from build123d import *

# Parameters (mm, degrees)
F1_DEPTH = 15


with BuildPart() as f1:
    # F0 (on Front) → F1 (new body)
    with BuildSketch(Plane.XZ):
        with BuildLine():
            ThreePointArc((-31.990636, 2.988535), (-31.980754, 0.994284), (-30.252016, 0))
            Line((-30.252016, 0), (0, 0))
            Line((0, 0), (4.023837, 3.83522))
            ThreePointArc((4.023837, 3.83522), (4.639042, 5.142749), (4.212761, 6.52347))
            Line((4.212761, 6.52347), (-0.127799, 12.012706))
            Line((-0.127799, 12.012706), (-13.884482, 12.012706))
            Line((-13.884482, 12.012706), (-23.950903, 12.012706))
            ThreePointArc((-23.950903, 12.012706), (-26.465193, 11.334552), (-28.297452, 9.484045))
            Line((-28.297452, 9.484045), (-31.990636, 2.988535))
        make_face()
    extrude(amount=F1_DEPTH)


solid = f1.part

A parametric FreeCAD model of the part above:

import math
import FreeCAD as App
import Part
import Sketcher
from FreeCAD import Vector
Q = App.Units.Quantity

doc = App.newDocument("Part")
body = doc.addObject("PartDesign::Body", "Body")

sketch1 = body.newObject("Sketcher::SketchObject", "Sketch")
sketch1.AttachmentSupport = (doc.getObject("XZ_Plane"), [""])
sketch1.MapMode = "FlatFace"
sketch1.addGeometry(Part.ArcOfCircle(Part.Circle(Vector(-30.3, 2, 0), Vector(0, 0, 1), 2), math.radians(150), math.radians(270)), False)
sketch1.addGeometry(Part.LineSegment(Vector(-30.3, 0, 0), Vector(0, 0, 0)), False)
sketch1.addGeometry(Part.LineSegment(Vector(0, 0, 0), Vector(4, 3.8, 0)), False)
sketch1.addGeometry(Part.ArcOfCircle(Part.Circle(Vector(2.6, 5.3, 0), Vector(0, 0, 1), 2), math.radians(-46), math.radians(38)), False)
sketch1.addGeometry(Part.LineSegment(Vector(4.2, 6.5, 0), Vector(-0.1, 12, 0)), False)
sketch1.addGeometry(Part.LineSegment(Vector(-0.1, 12, 0), Vector(-24, 12, 0)), False)
sketch1.addGeometry(Part.ArcOfCircle(Part.Circle(Vector(-24, 7, 0), Vector(0, 0, 1), 5), math.radians(90), math.radians(150)), False)
sketch1.addGeometry(Part.LineSegment(Vector(-28.3, 9.5, 0), Vector(-32, 3, 0)), False)
sketch1.addConstraint(Sketcher.Constraint("Tangent", 0, 2, 1, 1))
sketch1.addConstraint(Sketcher.Constraint("Coincident", 1, 2, 2, 1))
sketch1.addConstraint(Sketcher.Constraint("Tangent", 2, 2, 3, 1))
sketch1.addConstraint(Sketcher.Constraint("Tangent", 3, 2, 4, 1))
sketch1.addConstraint(Sketcher.Constraint("Coincident", 4, 2, 5, 1))
sketch1.addConstraint(Sketcher.Constraint("Tangent", 5, 2, 6, 1))
sketch1.addConstraint(Sketcher.Constraint("Tangent", 6, 2, 7, 1))
sketch1.addConstraint(Sketcher.Constraint("Tangent", 7, 2, 0, 1))
sketch1.addConstraint(Sketcher.Constraint("Horizontal", 1))
sketch1.addConstraint(Sketcher.Constraint("Horizontal", 5))
sketch1.addConstraint(Sketcher.Constraint("Coincident", 1, 2, -1, 1))
sketch1.addConstraint(Sketcher.Constraint("Equal", 0, 3))
sketch1.addConstraint(Sketcher.Constraint("Radius", 0, Q("2 mm")))
sketch1.addConstraint(Sketcher.Constraint("Radius", 6, Q("4.999997 mm")))
sketch1.addConstraint(Sketcher.Constraint("DistanceX", 4, 2, -1, 1, Q("0.127799 mm")))
sketch1.addConstraint(Sketcher.Constraint("Distance", 7, Q("7.472032 mm")))
sketch1.addConstraint(Sketcher.Constraint("DistanceX", 1, 1, 1, 2, Q("30.252016 mm")))
sketch1.addConstraint(Sketcher.Constraint("DistanceX", 5, 2, 5, 1, Q("23.823104 mm")))
sketch1.addConstraint(Sketcher.Constraint("DistanceY", -1, 1, 2, 2, Q("3.83522 mm")))
sketch1.addConstraint(Sketcher.Constraint("DistanceX", -1, 1, 3, 2, Q("4.212761 mm")))
pad1 = body.newObject("PartDesign::Pad", "Pad")
pad1.Profile = sketch1
pad1.Length = 15

doc.recompute()
